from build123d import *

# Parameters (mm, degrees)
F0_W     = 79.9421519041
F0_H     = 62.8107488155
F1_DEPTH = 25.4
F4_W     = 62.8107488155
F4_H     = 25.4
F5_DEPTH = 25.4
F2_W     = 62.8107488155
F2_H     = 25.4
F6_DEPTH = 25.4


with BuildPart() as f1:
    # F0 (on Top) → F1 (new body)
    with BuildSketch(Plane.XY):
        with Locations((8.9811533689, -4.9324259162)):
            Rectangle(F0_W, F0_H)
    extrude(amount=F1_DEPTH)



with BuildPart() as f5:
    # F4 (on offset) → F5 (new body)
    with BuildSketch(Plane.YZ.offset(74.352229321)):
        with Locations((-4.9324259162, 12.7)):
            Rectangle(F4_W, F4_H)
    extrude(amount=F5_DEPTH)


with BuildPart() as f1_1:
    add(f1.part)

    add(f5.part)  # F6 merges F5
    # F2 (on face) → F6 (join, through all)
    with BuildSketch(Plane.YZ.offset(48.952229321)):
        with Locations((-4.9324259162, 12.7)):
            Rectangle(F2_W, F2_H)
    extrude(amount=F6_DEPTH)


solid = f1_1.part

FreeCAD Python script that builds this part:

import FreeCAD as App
import Part
import Sketcher

V = App.Vector
Q = App.Units.Quantity


def add_polygon(sketch, points):
    """Adds a closed chain of lines whose ends are joined by coincident constraints."""
    first, n = sketch.GeometryCount, len(points)
    for a, b in zip(points, points[1:] + points[:1]):
        sketch.addGeometry(Part.LineSegment(App.Vector(*a, 0), App.Vector(*b, 0)), False)
    for i in range(n):
        sketch.addConstraint(Sketcher.Constraint("Coincident", first + i, 2, first + (i + 1) % n, 1))

doc = App.newDocument("Part")
body = doc.addObject("PartDesign::Body", "Body")

# Sketch on XY plane
sketch1 = body.newObject("Sketcher::SketchObject", "Sketch")
sketch1.AttachmentSupport = (doc.getObject("XY_Plane"), [""])
sketch1.MapMode = "FlatFace"
add_polygon(sketch1, [(-31, 26), (-31, -36), (49, -36), (49, 26)])  # lines 0-3
sketch1.addConstraint([
    Sketcher.Constraint("Vertical", 0),
    Sketcher.Constraint("Horizontal", 1),
    Sketcher.Constraint("Vertical", 2),
    Sketcher.Constraint("Horizontal", 3),
    Sketcher.Constraint("DistanceX", 1, 1, 1, 2, Q("79.942152 mm")),
    Sketcher.Constraint("DistanceY", 0, 2, 0, 1, Q("62.810749 mm")),
    Sketcher.Constraint("DistanceY", 0, 2, -1, 1, Q("36.3378 mm")),
    Sketcher.Constraint("DistanceX", -1, 1, 1, 2, Q("48.952229 mm")),
])
pad1 = body.newObject("PartDesign::Pad", "Pad")
pad1.Profile = sketch1
pad1.Length = Q("1 in")
body2 = doc.addObject("PartDesign::Body", "Body001")

# Sketch on YZ plane
sketch2 = body2.newObject("Sketcher::SketchObject", "Sketch001")
sketch2.AttachmentSupport = (doc.getObject("YZ_Plane001"), [""])
sketch2.MapMode = "FlatFace"
sketch2.AttachmentOffset = App.Placement(V(0, 0, 74.352229), App.Rotation())
add_polygon(sketch2, [(-36, 25), (-36, 0), (26, 0), (26, 25)])  # lines 0-3
sketch2.addConstraint([
    Sketcher.Constraint("Vertical", 0),
    Sketcher.Constraint("Horizontal", 1),
    Sketcher.Constraint("Vertical", 2),
    Sketcher.Constraint("Horizontal", 3),
    Sketcher.Constraint("PointOnObject", 0, 2, -1),
    Sketcher.Constraint("DistanceY", 0, 2, 0, 1, Q("1 in")),
    Sketcher.Constraint("DistanceX", 1, 1, 1, 2, Q("62.810749 mm")),
    Sketcher.Constraint("DistanceX", 0, 2, -1, 1, Q("36.3378 mm")),
])
pad2 = body2.newObject("PartDesign::Pad", "Pad001")
pad2.Profile = sketch2
pad2.Length = Q("1 in")
body.AllowCompound = True
doc.recompute()

boolean = body.newObject("PartDesign::Boolean", "Boolean")
boolean.Type = "Fuse"
boolean.addObjects([body2])

# Sketch on YZ plane
sketch3 = body.newObject("Sketcher::SketchObject", "Sketch002")
sketch3.AttachmentSupport = (doc.getObject("YZ_Plane"), [""])
sketch3.MapMode = "FlatFace"
sketch3.AttachmentOffset = App.Placement(V(0, 0, 48.952229), App.Rotation())
add_polygon(sketch3, [(-36, 25), (-36, 0), (26, 0), (26, 25)])  # lines 0-3
sketch3.addConstraint([
    Sketcher.Constraint("Vertical", 0),
    Sketcher.Constraint("Horizontal", 1),
    Sketcher.Constraint("Vertical", 2),
    Sketcher.Constraint("Horizontal", 3),
    Sketcher.Constraint("PointOnObject", 0, 2, -1),
    Sketcher.Constraint("DistanceY", 0, 2, 0, 1, Q("1 in")),
    Sketcher.Constraint("DistanceX", 1, 1, 1, 2, Q("62.810749 mm")),
    Sketcher.Constraint("DistanceX", 0, 2, -1, 1, Q("36.3378 mm")),
])
pad3 = body.newObject("PartDesign::Pad", "Pad002")
pad3.Profile = sketch3
pad3.Type = "UpToLast"

doc.recompute()
